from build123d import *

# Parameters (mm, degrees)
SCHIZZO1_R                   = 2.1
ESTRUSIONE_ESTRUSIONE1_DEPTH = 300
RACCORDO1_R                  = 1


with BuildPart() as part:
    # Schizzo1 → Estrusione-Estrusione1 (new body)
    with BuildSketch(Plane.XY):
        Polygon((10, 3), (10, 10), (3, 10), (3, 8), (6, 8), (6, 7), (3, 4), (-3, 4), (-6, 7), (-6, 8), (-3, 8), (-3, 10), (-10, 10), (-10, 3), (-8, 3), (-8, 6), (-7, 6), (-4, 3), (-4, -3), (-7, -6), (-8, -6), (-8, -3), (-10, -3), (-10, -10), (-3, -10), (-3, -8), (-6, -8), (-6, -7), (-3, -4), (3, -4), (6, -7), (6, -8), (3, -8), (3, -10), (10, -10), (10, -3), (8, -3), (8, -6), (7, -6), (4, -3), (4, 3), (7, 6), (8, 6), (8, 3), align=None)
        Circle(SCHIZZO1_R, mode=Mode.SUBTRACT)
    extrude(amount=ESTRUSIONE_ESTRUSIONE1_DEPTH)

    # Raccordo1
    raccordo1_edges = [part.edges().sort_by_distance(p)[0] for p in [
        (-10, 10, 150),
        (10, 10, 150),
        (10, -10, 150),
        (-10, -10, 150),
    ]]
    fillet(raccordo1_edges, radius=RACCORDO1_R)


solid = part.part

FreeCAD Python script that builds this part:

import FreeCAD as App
import Part
import Sketcher


def edges_at(feature, points):
    """Names of the edges that pass closest to the given points."""
    edges = feature.Shape.Edges
    near = lambda p: min(range(len(edges)), key=lambda i: edges[i].distToShape(Part.Vertex(*p))[0])
    return sorted({f"Edge{near(p) + 1}" for p in points})

doc = App.newDocument("Part")
params = doc.addObject("Spreadsheet::Sheet", "Params")
for row, (alias, value) in enumerate([
    ("sketch1_diameter", "4.2 mm"),
    ("sketch1_width", "7 mm"),
    ("sketch1_width2", "3 mm"),
    ("sketch1_width3", "6 mm"),
    ("sketch1_width4", "2 mm"),
    ("pad1_length", "300 mm"),
    ("fillet_radius", "1 mm"),
], start=1):
    params.set(f"A{row}", alias)
    params.set(f"B{row}", "=" + value)
    params.setAlias(f"B{row}", alias)

body = doc.addObject("PartDesign::Body", "Body")

# Sketch on XY plane
sketch1 = doc.addObject("Sketcher::SketchObject", "Sketch")
body.addObject(sketch1)
sketch1.AttachmentSupport = (doc.XY_Plane, [""])
sketch1.MapMode = "FlatFace"
sketch1.addGeometry([
    Part.LineSegment(App.Vector(10, 3, 0), App.Vector(10, 10, 0)),  # 0
    Part.LineSegment(App.Vector(10, 10, 0), App.Vector(3, 10, 0)),  # 1
    Part.LineSegment(App.Vector(3, 10, 0), App.Vector(3, 8, 0)),  # 2
    Part.LineSegment(App.Vector(3, 8, 0), App.Vector(6, 8, 0)),  # 3
    Part.LineSegment(App.Vector(6, 8, 0), App.Vector(6, 7, 0)),  # 4
    Part.LineSegment(App.Vector(6, 7, 0), App.Vector(3, 4, 0)),  # 5
    Part.LineSegment(App.Vector(3, 4, 0), App.Vector(-3, 4, 0)),  # 6
    Part.LineSegment(App.Vector(-3, 4, 0), App.Vector(-6, 7, 0)),  # 7
    Part.LineSegment(App.Vector(-6, 7, 0), App.Vector(-6, 8, 0)),  # 8
    Part.LineSegment(App.Vector(-6, 8, 0), App.Vector(-3, 8, 0)),  # 9
    Part.LineSegment(App.Vector(-3, 8, 0), App.Vector(-3, 10, 0)),  # 10
    Part.LineSegment(App.Vector(-3, 10, 0), App.Vector(-10, 10, 0)),  # 11
    Part.LineSegment(App.Vector(-10, 10, 0), App.Vector(-10, 3, 0)),  # 12
    Part.LineSegment(App.Vector(-10, 3, 0), App.Vector(-8, 3, 0)),  # 13
    Part.LineSegment(App.Vector(-8, 3, 0), App.Vector(-8, 6, 0)),  # 14
    Part.LineSegment(App.Vector(-8, 6, 0), App.Vector(-7, 6, 0)),  # 15
    Part.LineSegment(App.Vector(-7, 6, 0), App.Vector(-4, 3, 0)),  # 16
    Part.LineSegment(App.Vector(-4, 3, 0), App.Vector(-4, -3, 0)),  # 17
    Part.LineSegment(App.Vector(-4, -3, 0), App.Vector(-7, -6, 0)),  # 18
    Part.LineSegment(App.Vector(-7, -6, 0), App.Vector(-8, -6, 0)),  # 19
    Part.LineSegment(App.Vector(-8, -6, 0), App.Vector(-8, -3, 0)),  # 20
    Part.LineSegment(App.Vector(-8, -3, 0), App.Vector(-10, -3, 0)),  # 21
    Part.LineSegment(App.Vector(-10, -3, 0), App.Vector(-10, -10, 0)),  # 22
    Part.LineSegment(App.Vector(-10, -10, 0), App.Vector(-3, -10, 0)),  # 23
    Part.LineSegment(App.Vector(-3, -10, 0), App.Vector(-3, -8, 0)),  # 24
    Part.LineSegment(App.Vector(-3, -8, 0), App.Vector(-6, -8, 0)),  # 25
    Part.LineSegment(App.Vector(-6, -8, 0), App.Vector(-6, -7, 0)),  # 26
    Part.LineSegment(App.Vector(-6, -7, 0), App.Vector(-3, -4, 0)),  # 27
    Part.LineSegment(App.Vector(-3, -4, 0), App.Vector(3, -4, 0)),  # 28
    Part.LineSegment(App.Vector(3, -4, 0), App.Vector(6, -7, 0)),  # 29
    Part.LineSegment(App.Vector(6, -7, 0), App.Vector(6, -8, 0)),  # 30
    Part.LineSegment(App.Vector(6, -8, 0), App.Vector(3, -8, 0)),  # 31
    Part.LineSegment(App.Vector(3, -8, 0), App.Vector(3, -10, 0)),  # 32
    Part.LineSegment(App.Vector(3, -10, 0), App.Vector(10, -10, 0)),  # 33
    Part.LineSegment(App.Vector(10, -10, 0), App.Vector(10, -3, 0)),  # 34
    Part.LineSegment(App.Vector(10, -3, 0), App.Vector(8, -3, 0)),  # 35
    Part.LineSegment(App.Vector(8, -3, 0), App.Vector(8, -6, 0)),  # 36
    Part.LineSegment(App.Vector(8, -6, 0), App.Vector(7, -6, 0)),  # 37
    Part.LineSegment(App.Vector(7, -6, 0), App.Vector(4, -3, 0)),  # 38
    Part.LineSegment(App.Vector(4, -3, 0), App.Vector(4, 3, 0)),  # 39
    Part.LineSegment(App.Vector(4, 3, 0), App.Vector(7, 6, 0)),  # 40
    Part.LineSegment(App.Vector(7, 6, 0), App.Vector(8, 6, 0)),  # 41
    Part.LineSegment(App.Vector(8, 6, 0), App.Vector(8, 3, 0)),  # 42
    Part.LineSegment(App.Vector(8, 3, 0), App.Vector(10, 3, 0)),  # 43
    Part.Circle(App.Vector(0, 0, 0), App.Vector(0, 0, 1), 2.1),  # 44
], False)
sketch1.addConstraint([
    Sketcher.Constraint("Coincident", 0, 2, 1, 1),
    Sketcher.Constraint("Coincident", 1, 2, 2, 1),
    Sketcher.Constraint("Coincident", 2, 2, 3, 1),
    Sketcher.Constraint("Coincident", 3, 2, 4, 1),
    Sketcher.Constraint("Coincident", 4, 2, 5, 1),
    Sketcher.Constraint("Coincident", 5, 2, 6, 1),
    Sketcher.Constraint("Coincident", 6, 2, 7, 1),
    Sketcher.Constraint("Coincident", 7, 2, 8, 1),
    Sketcher.Constraint("Coincident", 8, 2, 9, 1),
    Sketcher.Constraint("Coincident", 9, 2, 10, 1),
    Sketcher.Constraint("Coincident", 10, 2, 11, 1),
    Sketcher.Constraint("Coincident", 11, 2, 12, 1),
    Sketcher.Constraint("Coincident", 12, 2, 13, 1),
    Sketcher.Constraint("Coincident", 13, 2, 14, 1),
    Sketcher.Constraint("Coincident", 14, 2, 15, 1),
    Sketcher.Constraint("Coincident", 15, 2, 16, 1),
    Sketcher.Constraint("Coincident", 16, 2, 17, 1),
    Sketcher.Constraint("Coincident", 17, 2, 18, 1),
    Sketcher.Constraint("Coincident", 18, 2, 19, 1),
    Sketcher.Constraint("Coincident", 19, 2, 20, 1),
    Sketcher.Constraint("Coincident", 20, 2, 21, 1),
    Sketcher.Constraint("Coincident", 21, 2, 22, 1),
    Sketcher.Constraint("Coincident", 22, 2, 23, 1),
    Sketcher.Constraint("Coincident", 23, 2, 24, 1),
    Sketcher.Constraint("Coincident", 24, 2, 25, 1),
    Sketcher.Constraint("Coincident", 25, 2, 26, 1),
    Sketcher.Constraint("Coincident", 26, 2, 27, 1),
    Sketcher.Constraint("Coincident", 27, 2, 28, 1),
    Sketcher.Constraint("Coincident", 28, 2, 29, 1),
    Sketcher.Constraint("Coincident", 29, 2, 30, 1),
    Sketcher.Constraint("Coincident", 30, 2, 31, 1),
    Sketcher.Constraint("Coincident", 31, 2, 32, 1),
    Sketcher.Constraint("Coincident", 32, 2, 33, 1),
    Sketcher.Constraint("Coincident", 33, 2, 34, 1),
    Sketcher.Constraint("Coincident", 34, 2, 35, 1),
    Sketcher.Constraint("Coincident", 35, 2, 36, 1),
    Sketcher.Constraint("Coincident", 36, 2, 37, 1),
    Sketcher.Constraint("Coincident", 37, 2, 38, 1),
    Sketcher.Constraint("Coincident", 38, 2, 39, 1),
    Sketcher.Constraint("Coincident", 39, 2, 40, 1),
    Sketcher.Constraint("Coincident", 40, 2, 41, 1),
    Sketcher.Constraint("Coincident", 41, 2, 42, 1),
    Sketcher.Constraint("Coincident", 42, 2, 43, 1),
    Sketcher.Constraint("Coincident", 43, 2, 0, 1),
    Sketcher.Constraint("Vertical", 0),
    Sketcher.Constraint("Horizontal", 1),
    Sketcher.Constraint("Vertical", 2),
    Sketcher.Constraint("Horizontal", 3),
    Sketcher.Constraint("Vertical", 4),
    Sketcher.Constraint("Horizontal", 6),
    Sketcher.Constraint("Vertical", 8),
    Sketcher.Constraint("Horizontal", 9),
    Sketcher.Constraint("Vertical", 10),
    Sketcher.Constraint("Horizontal", 11),
    Sketcher.Constraint("Vertical", 12),
    Sketcher.Constraint("Horizontal", 13),
    Sketcher.Constraint("Vertical", 14),
    Sketcher.Constraint("Horizontal", 15),
    Sketcher.Constraint("Vertical", 17),
    Sketcher.Constraint("Horizontal", 19),
    Sketcher.Constraint("Vertical", 20),
    Sketcher.Constraint("Horizontal", 21),
    Sketcher.Constraint("Vertical", 22),
    Sketcher.Constraint("Horizontal", 23),
    Sketcher.Constraint("Vertical", 24),
    Sketcher.Constraint("Horizontal", 25),
    Sketcher.Constraint("Vertical", 26),
    Sketcher.Constraint("Horizontal", 28),
    Sketcher.Constraint("Vertical", 30),
    Sketcher.Constraint("Horizontal", 31),
    Sketcher.Constraint("Vertical", 32),
    Sketcher.Constraint("Horizontal", 33),
    Sketcher.Constraint("Vertical", 34),
    Sketcher.Constraint("Horizontal", 35),
    Sketcher.Constraint("Vertical", 36),
    Sketcher.Constraint("Horizontal", 37),
    Sketcher.Constraint("Vertical", 39),
    Sketcher.Constraint("Horizontal", 41),
    Sketcher.Constraint("Vertical", 42),
    Sketcher.Constraint("Horizontal", 43),
    Sketcher.Constraint("Coincident", 44, 3, -1, 1),
    Sketcher.Constraint("Symmetric", 0, 2, 22, 2, -1, 1),
    Sketcher.Constraint("Symmetric", 2, 2, 24, 2, -1, 1),
    Sketcher.Constraint("Symmetric", 4, 2, 26, 2, -1, 1),
    Sketcher.Constraint("Symmetric", 5, 2, 27, 2, -1, 1),
    Sketcher.Constraint("Symmetric", 7, 2, 29, 2, -1, 1),
    Sketcher.Constraint("Symmetric", 9, 2, 31, 2, -1, 1),
    Sketcher.Constraint("Symmetric", 11, 2, 33, 2, -1, 1),
    Sketcher.Constraint("Symmetric", 13, 2, 35, 2, -1, 1),
    Sketcher.Constraint("Symmetric", 15, 2, 37, 2, -1, 1),
    Sketcher.Constraint("Symmetric", 16, 2, 38, 2, -1, 1),
    Sketcher.Constraint("Symmetric", 18, 2, 40, 2, -1, 1),
    Sketcher.Constraint("Symmetric", 20, 2, 42, 2, -1, 1),
    Sketcher.Constraint("Symmetric", 4, 2, 7, 2, -2),
    Sketcher.Constraint("Symmetric", 2, 2, 9, 2, -2),
    Sketcher.Constraint("Symmetric", 0, 2, 11, 2, -2),
    Sketcher.Constraint("Symmetric", 20, 2, 35, 2, -2),
    Sketcher.Constraint("Symmetric", 18, 2, 37, 2, -2),
    Sketcher.Constraint("Perpendicular", 5, 7),
    Sketcher.Constraint("Parallel", 7, 16),
    Sketcher.Constraint("Perpendicular", 16, 18),
    Sketcher.Constraint("Perpendicular", 27, 29),
    Sketcher.Constraint("Perpendicular", 38, 40),
    Sketcher.Constraint("Horizontal", 13, 2, 16, 2),
    Sketcher.Constraint("Horizontal", 17, 2, 20, 2),
    Sketcher.Constraint("Vertical", 2, 2, 5, 2),
    Sketcher.Constraint("Equal", 33, 0),
    Sketcher.Constraint("Equal", 43, 2),
    Sketcher.Constraint("Equal", 41, 4),
    Sketcher.Constraint("Equal", 31, 14),
    Sketcher.Constraint("Equal", 28, 17),
    Sketcher.Constraint("Diameter", 44, 4.2),
    Sketcher.Constraint("DistanceX", 1, 2, 1, 1, 7.0),
    Sketcher.Constraint("DistanceX", 3, 1, 3, 2, 3.0),
    Sketcher.Constraint("DistanceX", 6, 2, 6, 1, 6.0),
    Sketcher.Constraint("DistanceX", 13, 1, 13, 2, 2.0),
    Sketcher.Constraint("DistanceX", 15, 1, 15, 2, 1.0),
])
sketch1.setExpression("Constraints[111]", "Params.sketch1_diameter")
sketch1.setExpression("Constraints[112]", "Params.sketch1_width")
sketch1.setExpression("Constraints[113]", "Params.sketch1_width2")
sketch1.setExpression("Constraints[114]", "Params.sketch1_width3")
sketch1.setExpression("Constraints[115]", "Params.sketch1_width4")
pad1 = doc.addObject("PartDesign::Pad", "Pad")
body.addObject(pad1)
pad1.Profile = sketch1
pad1.setExpression("Length", "Params.pad1_length")
doc.recompute()

fillet = doc.addObject("PartDesign::Fillet", "Fillet")
body.addObject(fillet)
fillet.Base = (pad1, edges_at(pad1, [
    (-10, 10, 150),
    (10, 10, 150),
    (10, -10, 150),
    (-10, -10, 150),
]))
fillet.setExpression("Radius", "Params.fillet_radius")

doc.recompute()
